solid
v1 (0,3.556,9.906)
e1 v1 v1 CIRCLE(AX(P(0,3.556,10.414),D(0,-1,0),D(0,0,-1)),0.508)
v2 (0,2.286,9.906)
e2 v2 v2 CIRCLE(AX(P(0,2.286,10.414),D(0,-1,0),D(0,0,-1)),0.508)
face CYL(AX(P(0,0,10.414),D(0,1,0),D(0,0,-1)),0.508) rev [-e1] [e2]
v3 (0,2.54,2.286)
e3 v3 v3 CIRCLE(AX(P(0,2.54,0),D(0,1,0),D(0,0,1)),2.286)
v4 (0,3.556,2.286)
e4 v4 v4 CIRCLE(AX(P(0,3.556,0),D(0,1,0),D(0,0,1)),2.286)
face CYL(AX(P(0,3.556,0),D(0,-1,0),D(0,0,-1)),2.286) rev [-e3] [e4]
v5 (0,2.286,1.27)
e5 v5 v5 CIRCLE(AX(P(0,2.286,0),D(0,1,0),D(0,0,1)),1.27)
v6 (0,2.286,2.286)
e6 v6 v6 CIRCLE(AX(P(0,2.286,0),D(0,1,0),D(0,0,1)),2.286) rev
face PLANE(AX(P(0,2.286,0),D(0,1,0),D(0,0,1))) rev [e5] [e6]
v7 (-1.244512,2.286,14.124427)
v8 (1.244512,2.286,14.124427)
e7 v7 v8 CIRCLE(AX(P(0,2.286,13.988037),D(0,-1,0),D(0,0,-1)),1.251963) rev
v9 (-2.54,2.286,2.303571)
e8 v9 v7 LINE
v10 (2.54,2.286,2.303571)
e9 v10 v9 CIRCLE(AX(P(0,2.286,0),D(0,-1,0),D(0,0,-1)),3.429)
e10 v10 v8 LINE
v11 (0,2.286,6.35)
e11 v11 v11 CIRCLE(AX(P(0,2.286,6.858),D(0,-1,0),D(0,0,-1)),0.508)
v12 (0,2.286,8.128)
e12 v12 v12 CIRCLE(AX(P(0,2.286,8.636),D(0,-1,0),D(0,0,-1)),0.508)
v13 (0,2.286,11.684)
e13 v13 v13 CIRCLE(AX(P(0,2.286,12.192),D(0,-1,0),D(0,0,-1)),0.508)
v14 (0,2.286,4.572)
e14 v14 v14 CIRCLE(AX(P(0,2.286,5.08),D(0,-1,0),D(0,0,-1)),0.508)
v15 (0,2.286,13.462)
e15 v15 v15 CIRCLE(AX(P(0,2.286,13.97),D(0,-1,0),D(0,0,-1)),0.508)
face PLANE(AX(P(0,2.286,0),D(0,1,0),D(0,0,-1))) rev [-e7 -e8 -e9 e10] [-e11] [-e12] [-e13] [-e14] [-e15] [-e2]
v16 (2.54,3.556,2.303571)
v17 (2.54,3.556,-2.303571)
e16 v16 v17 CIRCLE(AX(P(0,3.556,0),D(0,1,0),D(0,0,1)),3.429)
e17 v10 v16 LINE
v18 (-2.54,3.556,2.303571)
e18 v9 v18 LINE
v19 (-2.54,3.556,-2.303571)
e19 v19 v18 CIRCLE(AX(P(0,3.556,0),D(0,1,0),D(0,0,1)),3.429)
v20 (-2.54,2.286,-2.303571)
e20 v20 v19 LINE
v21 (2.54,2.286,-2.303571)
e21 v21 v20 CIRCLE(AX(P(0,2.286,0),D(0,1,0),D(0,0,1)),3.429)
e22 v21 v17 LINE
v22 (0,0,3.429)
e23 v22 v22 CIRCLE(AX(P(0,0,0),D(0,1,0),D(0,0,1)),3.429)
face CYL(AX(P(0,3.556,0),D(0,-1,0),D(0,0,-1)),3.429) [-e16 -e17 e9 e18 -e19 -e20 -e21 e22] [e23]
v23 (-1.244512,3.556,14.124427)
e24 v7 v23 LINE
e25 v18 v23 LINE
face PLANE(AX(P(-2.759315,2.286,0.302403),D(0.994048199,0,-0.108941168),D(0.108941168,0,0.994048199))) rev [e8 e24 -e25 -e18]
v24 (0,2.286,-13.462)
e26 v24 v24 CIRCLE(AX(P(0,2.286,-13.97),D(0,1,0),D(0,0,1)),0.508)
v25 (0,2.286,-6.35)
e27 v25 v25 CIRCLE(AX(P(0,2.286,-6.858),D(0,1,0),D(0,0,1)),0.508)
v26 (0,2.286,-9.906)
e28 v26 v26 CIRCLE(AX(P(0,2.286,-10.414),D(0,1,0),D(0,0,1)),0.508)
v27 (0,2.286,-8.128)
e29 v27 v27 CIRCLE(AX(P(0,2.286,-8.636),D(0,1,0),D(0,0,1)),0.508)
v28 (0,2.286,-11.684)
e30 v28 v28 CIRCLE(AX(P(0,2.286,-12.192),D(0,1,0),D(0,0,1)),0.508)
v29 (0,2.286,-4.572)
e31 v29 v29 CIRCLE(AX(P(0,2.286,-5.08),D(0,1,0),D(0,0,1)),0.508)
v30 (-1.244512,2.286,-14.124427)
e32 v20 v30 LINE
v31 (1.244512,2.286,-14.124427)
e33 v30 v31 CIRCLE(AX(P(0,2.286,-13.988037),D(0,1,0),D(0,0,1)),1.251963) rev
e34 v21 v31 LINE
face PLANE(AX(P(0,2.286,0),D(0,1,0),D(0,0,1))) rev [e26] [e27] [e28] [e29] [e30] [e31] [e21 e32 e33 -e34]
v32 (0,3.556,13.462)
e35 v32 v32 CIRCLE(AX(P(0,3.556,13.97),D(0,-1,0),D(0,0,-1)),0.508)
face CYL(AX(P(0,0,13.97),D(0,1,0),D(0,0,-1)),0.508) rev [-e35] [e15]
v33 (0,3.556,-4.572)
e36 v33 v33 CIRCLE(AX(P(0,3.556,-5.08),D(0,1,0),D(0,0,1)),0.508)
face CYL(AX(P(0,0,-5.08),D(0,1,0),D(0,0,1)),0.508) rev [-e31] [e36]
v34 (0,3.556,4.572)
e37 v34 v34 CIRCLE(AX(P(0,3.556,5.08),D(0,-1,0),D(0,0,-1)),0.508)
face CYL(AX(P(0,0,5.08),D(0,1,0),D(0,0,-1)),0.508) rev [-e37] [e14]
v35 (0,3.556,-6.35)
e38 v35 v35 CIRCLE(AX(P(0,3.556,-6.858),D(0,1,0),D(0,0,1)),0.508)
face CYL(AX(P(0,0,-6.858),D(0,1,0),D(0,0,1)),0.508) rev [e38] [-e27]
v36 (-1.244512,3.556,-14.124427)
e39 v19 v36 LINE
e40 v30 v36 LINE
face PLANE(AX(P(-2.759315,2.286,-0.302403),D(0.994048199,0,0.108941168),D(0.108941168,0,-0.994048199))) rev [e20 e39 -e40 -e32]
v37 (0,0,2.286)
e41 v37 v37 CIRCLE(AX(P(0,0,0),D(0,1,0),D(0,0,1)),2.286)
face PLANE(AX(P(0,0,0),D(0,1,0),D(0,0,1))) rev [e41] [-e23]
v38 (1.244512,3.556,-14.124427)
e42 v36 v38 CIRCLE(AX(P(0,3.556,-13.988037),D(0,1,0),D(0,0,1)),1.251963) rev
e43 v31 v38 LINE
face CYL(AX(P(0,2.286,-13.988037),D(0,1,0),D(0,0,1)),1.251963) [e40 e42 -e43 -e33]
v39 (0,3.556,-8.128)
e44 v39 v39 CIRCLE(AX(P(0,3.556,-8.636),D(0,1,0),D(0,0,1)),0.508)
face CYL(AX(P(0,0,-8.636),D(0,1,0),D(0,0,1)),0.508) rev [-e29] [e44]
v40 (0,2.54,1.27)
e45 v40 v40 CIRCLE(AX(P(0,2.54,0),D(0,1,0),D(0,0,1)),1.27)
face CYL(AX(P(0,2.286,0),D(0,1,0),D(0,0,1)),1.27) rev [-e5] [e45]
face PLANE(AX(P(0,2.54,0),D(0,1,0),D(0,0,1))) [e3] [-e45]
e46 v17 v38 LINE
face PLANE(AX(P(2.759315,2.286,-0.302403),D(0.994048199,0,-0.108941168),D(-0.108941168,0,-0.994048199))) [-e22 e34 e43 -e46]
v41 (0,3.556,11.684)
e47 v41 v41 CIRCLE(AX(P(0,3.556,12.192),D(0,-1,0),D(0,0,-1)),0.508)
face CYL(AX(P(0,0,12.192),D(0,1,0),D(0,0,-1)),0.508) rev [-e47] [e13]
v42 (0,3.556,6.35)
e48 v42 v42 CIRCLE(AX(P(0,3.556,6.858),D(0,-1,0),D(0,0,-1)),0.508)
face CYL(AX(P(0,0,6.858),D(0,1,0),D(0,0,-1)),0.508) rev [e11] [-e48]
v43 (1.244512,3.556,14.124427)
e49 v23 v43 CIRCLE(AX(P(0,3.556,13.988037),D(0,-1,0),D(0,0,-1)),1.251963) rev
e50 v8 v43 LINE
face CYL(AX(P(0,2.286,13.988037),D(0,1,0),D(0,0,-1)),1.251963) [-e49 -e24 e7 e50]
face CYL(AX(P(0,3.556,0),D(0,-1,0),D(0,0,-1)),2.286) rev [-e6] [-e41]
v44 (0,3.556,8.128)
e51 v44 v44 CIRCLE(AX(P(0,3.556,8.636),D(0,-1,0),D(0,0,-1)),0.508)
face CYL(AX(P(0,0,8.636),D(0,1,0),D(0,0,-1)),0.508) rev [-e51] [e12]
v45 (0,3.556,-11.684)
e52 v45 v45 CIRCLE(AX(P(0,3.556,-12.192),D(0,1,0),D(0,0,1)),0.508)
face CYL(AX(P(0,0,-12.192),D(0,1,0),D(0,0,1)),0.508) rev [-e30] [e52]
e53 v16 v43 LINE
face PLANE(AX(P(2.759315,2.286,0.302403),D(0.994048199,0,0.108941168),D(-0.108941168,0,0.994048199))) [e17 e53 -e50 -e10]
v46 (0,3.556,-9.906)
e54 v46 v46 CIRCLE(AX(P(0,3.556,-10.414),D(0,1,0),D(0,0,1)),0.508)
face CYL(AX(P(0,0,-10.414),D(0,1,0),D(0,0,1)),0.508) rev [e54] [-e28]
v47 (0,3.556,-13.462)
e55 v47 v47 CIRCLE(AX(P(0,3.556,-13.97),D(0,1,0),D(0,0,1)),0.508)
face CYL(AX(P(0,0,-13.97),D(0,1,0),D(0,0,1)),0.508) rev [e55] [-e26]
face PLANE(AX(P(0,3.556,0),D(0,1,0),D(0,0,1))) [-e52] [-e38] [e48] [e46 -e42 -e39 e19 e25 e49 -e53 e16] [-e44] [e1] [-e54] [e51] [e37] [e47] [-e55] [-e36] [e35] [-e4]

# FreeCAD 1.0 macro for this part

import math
import FreeCAD as App
import Part
import Sketcher
from FreeCAD import Vector
Q = App.Units.Quantity


def add_polygon(sketch, points):
    """Adds a closed chain of lines whose ends are joined by coincident constraints."""
    first, n = sketch.GeometryCount, len(points)
    for a, b in zip(points, points[1:] + points[:1]):
        sketch.addGeometry(Part.LineSegment(App.Vector(*a, 0), App.Vector(*b, 0)), False)
    for i in range(n):
        sketch.addConstraint(Sketcher.Constraint("Coincident", first + i, 2, first + (i + 1) % n, 1))

doc = App.newDocument("Part")
body = doc.addObject("PartDesign::Body", "Body")

# Sketch on XZ plane
sketch1 = doc.addObject("Sketcher::SketchObject", "Sketch")
body.addObject(sketch1)
sketch1.AttachmentSupport = (doc.XZ_Plane, [""])
sketch1.MapMode = "FlatFace"
sketch1.addGeometry(Part.Circle(Vector(0, 0, 0), Vector(0, 0, 1), 3.4), False)
sketch1.addGeometry(Part.Circle(Vector(0, 0, 0), Vector(0, 0, 1), 2.3), False)
sketch1.addConstraint(Sketcher.Constraint("Coincident", 0, 3, -1, 1))
sketch1.addConstraint(Sketcher.Constraint("Coincident", 1, 3, -1, 1))
sketch1.addConstraint(Sketcher.Constraint("Diameter", 0, Q("0.27 in")))
sketch1.addConstraint(Sketcher.Constraint("Diameter", 1, Q("0.18 in")))
pad1 = doc.addObject("PartDesign::Pad", "Pad")
body.addObject(pad1)
pad1.Profile = sketch1
pad1.Length = Q("0.14 in")
pad1.Reversed = True

# Sketch on XZ plane
sketch2 = doc.addObject("Sketcher::SketchObject", "Sketch001")
body.addObject(sketch2)
sketch2.AttachmentSupport = (doc.XZ_Plane, [""])
sketch2.MapMode = "FlatFace"
sketch2.AttachmentOffset = App.Placement(Vector(0, 0, -0.14 * 25.4), App.Rotation())
sketch2.addGeometry(Part.ArcOfCircle(Part.Circle(Vector(0, 0, 0), Vector(0, 0, 1), 3.4), math.radians(-138), math.radians(-90)), False)
sketch2.addGeometry(Part.ArcOfCircle(Part.Circle(Vector(0, 0, 0), Vector(0, 0, 1), 3.4), math.radians(-90), math.radians(-42)), False)
sketch2.addGeometry(Part.LineSegment(Vector(2.5, -2.3, 0), Vector(1.2, -14.1, 0)), False)
sketch2.addGeometry(Part.ArcOfCircle(Part.Circle(Vector(0, -14, 0), Vector(0, 0, 1), 1.3), math.radians(-90), math.radians(-6)), False)
sketch2.addGeometry(Part.ArcOfCircle(Part.Circle(Vector(0, -14, 0), Vector(0, 0, 1), 1.3), math.radians(-174), math.radians(-90)), False)
sketch2.addGeometry(Part.LineSegment(Vector(-1.2, -14.1, 0), Vector(-2.5, -2.3, 0)), False)
sketch2.addConstraint(Sketcher.Constraint("Tangent", 0, 2, 1, 1))
sketch2.addConstraint(Sketcher.Constraint("Coincident", 1, 2, 2, 1))
sketch2.addConstraint(Sketcher.Constraint("Tangent", 2, 2, 3, 2))
sketch2.addConstraint(Sketcher.Constraint("Tangent", 3, 1, 4, 2))
sketch2.addConstraint(Sketcher.Constraint("Tangent", 4, 1, 5, 1))
sketch2.addConstraint(Sketcher.Constraint("Coincident", 5, 2, 0, 1))
sketch2.addConstraint(Sketcher.Constraint("Coincident", 0, 3, -1, 1))
sketch2.addConstraint(Sketcher.Constraint("Equal", 0, 1))
sketch2.addConstraint(Sketcher.Constraint("Equal", 3, 4))
sketch2.addConstraint(Sketcher.Constraint("Symmetric", 2, 2, 4, 1, -2))
sketch2.addConstraint(Sketcher.Constraint("PointOnObject", 0, 2, -2))
sketch2.addConstraint(Sketcher.Constraint("PointOnObject", 3, 1, -2))
sketch2.addConstraint(Sketcher.Constraint("Radius", 0, Q("0.135 in")))
sketch2.addConstraint(Sketcher.Constraint("DistanceX", -1, 1, 1, 2, Q("0.1 in")))
sketch2.addConstraint(Sketcher.Constraint("DistanceY", 3, 1, -1, 1, Q("0.6 in")))
sketch2.addConstraint(Sketcher.Constraint("Radius", 3, Q("1.251963 mm")))
pad2 = doc.addObject("PartDesign::Pad", "Pad001")
body.addObject(pad2)
pad2.Profile = sketch2
pad2.Length = Q("0.05 in")

# Sketch on XZ plane
sketch3 = doc.addObject("Sketcher::SketchObject", "Sketch002")
body.addObject(sketch3)
sketch3.AttachmentSupport = (doc.XZ_Plane, [""])
sketch3.MapMode = "FlatFace"
sketch3.AttachmentOffset = App.Placement(Vector(0, 0, -0.1 * 25.4), App.Rotation())
sketch3.addGeometry(Part.Circle(Vector(0, 0, 0), Vector(0, 0, 1), 2.3), False)
sketch3.addGeometry(Part.Circle(Vector(0, 0, 0), Vector(0, 0, 1), 1.3), False)
sketch3.addConstraint(Sketcher.Constraint("Coincident", 0, 3, -1, 1))
sketch3.addConstraint(Sketcher.Constraint("Coincident", 1, 3, -1, 1))
sketch3.addConstraint(Sketcher.Constraint("Diameter", 1, Q("0.1 in")))
sketch3.addConstraint(Sketcher.Constraint("Diameter", 0, Q("0.18 in")))
pad3 = doc.addObject("PartDesign::Pad", "Pad002")
body.addObject(pad3)
pad3.Profile = sketch3
pad3.Length = Q("0.01 in")

# Sketch on XZ plane
sketch4 = doc.addObject("Sketcher::SketchObject", "Sketch003")
body.addObject(sketch4)
sketch4.AttachmentSupport = (doc.XZ_Plane, [""])
sketch4.MapMode = "FlatFace"
sketch4.AttachmentOffset = App.Placement(Vector(0, 0, -0.14 * 25.4), App.Rotation())
sketch4.addGeometry(Part.Circle(Vector(0, -5.1, 0), Vector(0, 0, 1), 0.5), False)
sketch4.addConstraint(Sketcher.Constraint("PointOnObject", 0, 3, -2))
sketch4.addConstraint(Sketcher.Constraint("Diameter", 0, Q("0.04 in")))
sketch4.addConstraint(Sketcher.Constraint("DistanceY", 0, 3, -1, 1, Q("0.2 in")))
pocket1 = doc.addObject("PartDesign::Pocket", "Pocket")
body.addObject(pocket1)
pocket1.Profile = sketch4
pocket1.Type = "ThroughAll"
pocket1.Reversed = True
doc.recompute()

linearpattern = doc.addObject("PartDesign::LinearPattern", "LinearPattern")
body.addObject(linearpattern)
linearpattern.Originals = [pocket1]
linearpattern.Direction = (doc.Z_Axis, [""])
linearpattern.Mode = "offset"
linearpattern.Offset = Q("0.07 in")
linearpattern.Occurrences = 6
linearpattern.Reversed = True
body.Tip = linearpattern

# Sketch on YZ plane
sketch5 = doc.addObject("Sketcher::SketchObject", "Sketch004")
body.addObject(sketch5)
sketch5.AttachmentSupport = (doc.YZ_Plane, [""])
sketch5.MapMode = "FlatFace"
add_polygon(sketch5, [(6.7, 4.3), (0, 4.3), (0, 0), (6.7, 0)])  # lines 0-3
sketch5.addConstraint(Sketcher.Constraint("Horizontal", 0))
sketch5.addConstraint(Sketcher.Constraint("Vertical", 1))
sketch5.addConstraint(Sketcher.Constraint("Horizontal", 2))
sketch5.addConstraint(Sketcher.Constraint("Vertical", 3))
sketch5.addConstraint(Sketcher.Constraint("Coincident", 1, 2, -1, 1))
sketch5.addConstraint(Sketcher.Constraint("DistanceY", 1, 2, 1, 1, Q("4.326879 mm")))
sketch5.addConstraint(Sketcher.Constraint("DistanceX", 0, 2, 0, 1, Q("6.724217 mm")))
pocket2 = doc.addObject("PartDesign::Pocket", "Pocket001")
body.addObject(pocket2)
pocket2.Profile = sketch5
pocket2.Type = "ThroughAll"
pocket2.Midplane = True
body2 = doc.addObject("PartDesign::Body", "Body001")
doc.recompute()

body2.BaseFeature = body
doc.recompute()

mirroring = doc.addObject("Part::Mirroring", "Mirroring")
mirroring.Source = body
mirroring.Base = Vector(0, 0, 0)
mirroring.Normal = Vector(0, 0, 1)
body3 = doc.addObject("PartDesign::Body", "Body002")
body3.BaseFeature = mirroring
boolean = doc.addObject("PartDesign::Boolean", "Boolean")
body2.addObject(boolean)
boolean.Type = "Fuse"
boolean.addObjects([body3])
doc.recompute()
mirroring.Visibility = False

doc.recompute()
